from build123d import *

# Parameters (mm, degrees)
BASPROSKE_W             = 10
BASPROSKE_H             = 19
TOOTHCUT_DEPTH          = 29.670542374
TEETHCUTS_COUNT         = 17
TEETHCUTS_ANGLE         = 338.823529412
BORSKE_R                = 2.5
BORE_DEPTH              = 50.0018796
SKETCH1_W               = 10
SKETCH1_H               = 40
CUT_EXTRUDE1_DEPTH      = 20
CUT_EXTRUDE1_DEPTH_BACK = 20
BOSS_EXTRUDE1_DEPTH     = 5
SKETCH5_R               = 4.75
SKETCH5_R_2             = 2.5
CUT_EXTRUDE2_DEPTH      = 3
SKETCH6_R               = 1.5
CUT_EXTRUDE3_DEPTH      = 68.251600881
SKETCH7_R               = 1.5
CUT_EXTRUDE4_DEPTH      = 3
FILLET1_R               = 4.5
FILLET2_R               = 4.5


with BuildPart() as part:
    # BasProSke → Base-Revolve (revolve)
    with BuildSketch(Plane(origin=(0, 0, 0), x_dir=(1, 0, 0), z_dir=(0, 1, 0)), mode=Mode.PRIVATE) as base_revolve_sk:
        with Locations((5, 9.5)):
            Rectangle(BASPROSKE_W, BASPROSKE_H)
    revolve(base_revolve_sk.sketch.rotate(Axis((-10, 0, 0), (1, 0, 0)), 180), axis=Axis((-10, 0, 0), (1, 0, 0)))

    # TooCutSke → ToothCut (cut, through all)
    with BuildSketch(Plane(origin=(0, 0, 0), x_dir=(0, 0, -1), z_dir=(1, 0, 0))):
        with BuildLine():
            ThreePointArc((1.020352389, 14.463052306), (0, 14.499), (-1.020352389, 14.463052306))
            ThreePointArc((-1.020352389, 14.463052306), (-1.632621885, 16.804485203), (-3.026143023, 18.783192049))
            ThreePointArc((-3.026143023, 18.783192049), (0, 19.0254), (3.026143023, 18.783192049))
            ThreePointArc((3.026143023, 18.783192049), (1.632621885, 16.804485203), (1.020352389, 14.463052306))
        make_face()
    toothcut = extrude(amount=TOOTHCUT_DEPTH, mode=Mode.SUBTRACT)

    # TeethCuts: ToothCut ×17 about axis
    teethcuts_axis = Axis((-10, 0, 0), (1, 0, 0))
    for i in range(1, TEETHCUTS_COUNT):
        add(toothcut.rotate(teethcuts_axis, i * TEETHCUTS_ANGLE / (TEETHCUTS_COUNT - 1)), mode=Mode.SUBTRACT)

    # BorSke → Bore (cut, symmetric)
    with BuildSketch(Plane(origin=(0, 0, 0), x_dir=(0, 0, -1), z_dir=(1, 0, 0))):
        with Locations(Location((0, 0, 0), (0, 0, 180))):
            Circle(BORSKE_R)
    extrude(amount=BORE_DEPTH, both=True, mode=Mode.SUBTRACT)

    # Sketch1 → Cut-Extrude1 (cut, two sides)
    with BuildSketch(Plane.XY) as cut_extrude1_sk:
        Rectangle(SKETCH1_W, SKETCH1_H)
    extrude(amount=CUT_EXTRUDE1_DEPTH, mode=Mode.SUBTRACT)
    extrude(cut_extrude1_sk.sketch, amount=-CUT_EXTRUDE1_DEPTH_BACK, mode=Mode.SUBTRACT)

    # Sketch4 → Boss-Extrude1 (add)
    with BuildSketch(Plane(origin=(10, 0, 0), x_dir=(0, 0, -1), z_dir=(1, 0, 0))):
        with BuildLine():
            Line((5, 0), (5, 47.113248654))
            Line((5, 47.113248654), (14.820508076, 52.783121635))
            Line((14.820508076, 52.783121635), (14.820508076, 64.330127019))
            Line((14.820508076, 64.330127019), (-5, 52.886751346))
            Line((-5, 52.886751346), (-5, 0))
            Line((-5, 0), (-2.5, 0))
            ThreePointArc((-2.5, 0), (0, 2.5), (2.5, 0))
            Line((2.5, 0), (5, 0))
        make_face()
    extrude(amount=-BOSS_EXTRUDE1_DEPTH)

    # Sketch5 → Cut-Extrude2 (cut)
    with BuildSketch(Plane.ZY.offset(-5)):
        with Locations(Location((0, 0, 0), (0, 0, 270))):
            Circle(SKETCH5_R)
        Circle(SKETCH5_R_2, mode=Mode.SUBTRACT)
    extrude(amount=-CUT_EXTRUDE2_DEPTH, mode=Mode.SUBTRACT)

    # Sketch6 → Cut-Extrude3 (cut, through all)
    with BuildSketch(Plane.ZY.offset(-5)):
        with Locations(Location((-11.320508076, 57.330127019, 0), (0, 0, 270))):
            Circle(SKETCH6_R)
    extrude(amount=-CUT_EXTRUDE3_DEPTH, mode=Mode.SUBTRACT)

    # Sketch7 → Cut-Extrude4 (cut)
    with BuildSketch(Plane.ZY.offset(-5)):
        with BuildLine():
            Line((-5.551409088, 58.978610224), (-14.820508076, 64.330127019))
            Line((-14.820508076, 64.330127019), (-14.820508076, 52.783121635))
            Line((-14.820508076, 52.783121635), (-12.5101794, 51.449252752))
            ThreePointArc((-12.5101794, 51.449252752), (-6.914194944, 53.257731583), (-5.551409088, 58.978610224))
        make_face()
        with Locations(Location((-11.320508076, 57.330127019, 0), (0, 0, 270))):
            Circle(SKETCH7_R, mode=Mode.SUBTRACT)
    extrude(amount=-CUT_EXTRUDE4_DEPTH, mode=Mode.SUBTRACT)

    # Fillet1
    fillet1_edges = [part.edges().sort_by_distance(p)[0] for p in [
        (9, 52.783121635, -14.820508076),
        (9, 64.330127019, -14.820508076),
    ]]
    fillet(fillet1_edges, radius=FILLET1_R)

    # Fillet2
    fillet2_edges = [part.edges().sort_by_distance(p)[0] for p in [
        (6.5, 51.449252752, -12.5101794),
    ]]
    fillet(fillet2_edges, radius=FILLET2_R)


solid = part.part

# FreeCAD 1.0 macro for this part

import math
import FreeCAD as App
import Part
import Sketcher
Q = App.Units.Quantity


def edges_at(feature, points):
    """Names of the edges that pass closest to the given points."""
    edges = feature.Shape.Edges
    near = lambda p: min(range(len(edges)), key=lambda i: edges[i].distToShape(Part.Vertex(*p))[0])
    return sorted({f"Edge{near(p) + 1}" for p in points})

doc = App.newDocument("Part")
body = doc.addObject("PartDesign::Body", "Body")

# Sketch on XZ plane
sketch1 = body.newObject("Sketcher::SketchObject", "Sketch")
sketch1.AttachmentSupport = (doc.getObject("XZ_Plane"), [""])
sketch1.MapMode = "FlatFace"
sketch1.addGeometry(Part.LineSegment(App.Vector(0, -19, 0), App.Vector(0, 0, 0)), False)
sketch1.addGeometry(Part.LineSegment(App.Vector(0, 0, 0), App.Vector(10, 0, 0)), False)
sketch1.addGeometry(Part.LineSegment(App.Vector(10, 0, 0), App.Vector(10, -19, 0)), False)
sketch1.addGeometry(Part.LineSegment(App.Vector(10, -19, 0), App.Vector(0, -19, 0)), False)
sketch1.addConstraint(Sketcher.Constraint("Coincident", 0, 2, 1, 1))
sketch1.addConstraint(Sketcher.Constraint("Coincident", 1, 2, 2, 1))
sketch1.addConstraint(Sketcher.Constraint("Coincident", 2, 2, 3, 1))
sketch1.addConstraint(Sketcher.Constraint("Coincident", 3, 2, 0, 1))
sketch1.addConstraint(Sketcher.Constraint("Vertical", 0))
sketch1.addConstraint(Sketcher.Constraint("Horizontal", 1))
sketch1.addConstraint(Sketcher.Constraint("Vertical", 2))
sketch1.addConstraint(Sketcher.Constraint("Horizontal", 3))
sketch1.addConstraint(Sketcher.Constraint("Coincident", 0, 2, -1, 1))
sketch1.addConstraint(Sketcher.Constraint("DistanceX", 1, 1, 1, 2, 10.0))
sketch1.addConstraint(Sketcher.Constraint("DistanceY", 0, 1, 0, 2, 19.0))
revolution = body.newObject("PartDesign::Revolution", "Revolution")
revolution.Profile = sketch1
revolution.ReferenceAxis = (sketch1, ["H_Axis"])
revolution.Angle = 360

# Sketch on YZ plane
sketch2 = body.newObject("Sketcher::SketchObject", "Sketch001")
sketch2.AttachmentSupport = (doc.getObject("YZ_Plane"), [""])
sketch2.MapMode = "FlatFace"
sketch2.addGeometry(Part.ArcOfCircle(Part.Circle(App.Vector(0, 0, 0), App.Vector(0, 0, 1), 14.5), math.radians(-4.04), math.radians(4.04)), False)
sketch2.addGeometry(Part.ArcOfCircle(Part.Circle(App.Vector(13.9, -7.8, 0), App.Vector(0, 0, 1), 6.8), math.radians(45), math.radians(86)), False)
sketch2.addGeometry(Part.ArcOfCircle(Part.Circle(App.Vector(0, 0, 0), App.Vector(0, 0, 1), 19), math.radians(-9.15), math.radians(9.15)), False)
sketch2.addGeometry(Part.ArcOfCircle(Part.Circle(App.Vector(13.9, 7.8, 0), App.Vector(0, 0, 1), 6.8), math.radians(-86), math.radians(-45)), False)
sketch2.addConstraint(Sketcher.Constraint("Coincident", 0, 1, 1, 2))
sketch2.addConstraint(Sketcher.Constraint("Coincident", 1, 1, 2, 1))
sketch2.addConstraint(Sketcher.Constraint("Coincident", 2, 2, 3, 2))
sketch2.addConstraint(Sketcher.Constraint("Coincident", 3, 1, 0, 2))
sketch2.addConstraint(Sketcher.Constraint("Coincident", 0, 3, -1, 1))
sketch2.addConstraint(Sketcher.Constraint("Coincident", 2, 3, -1, 1))
sketch2.addConstraint(Sketcher.Constraint("Equal", 1, 3))
sketch2.addConstraint(Sketcher.Constraint("Symmetric", 1, 3, 3, 3, -1))
sketch2.addConstraint(Sketcher.Constraint("Radius", 1, 6.8))
sketch2.addConstraint(Sketcher.Constraint("Radius", 0, 14.499))
sketch2.addConstraint(Sketcher.Constraint("Radius", 2, 19.0254))
sketch2.addConstraint(Sketcher.Constraint("DistanceY", 0, 1, 3, 3, 8.820629))
sketch2.addConstraint(Sketcher.Constraint("DistanceX", 0, 1, 1, 1, 4.32014))
pocket1 = body.newObject("PartDesign::Pocket", "Pocket")
pocket1.Profile = sketch2
pocket1.Type = "ThroughAll"
pocket1.Reversed = True
doc.recompute()

polarpattern = body.newObject("PartDesign::PolarPattern", "PolarPattern")
polarpattern.Originals = [pocket1]
polarpattern.Axis = (doc.getObject("X_Axis"), [""])
polarpattern.Angle = 360
polarpattern.Occurrences = 17
body.Tip = polarpattern

# Sketch on YZ plane
sketch3 = body.newObject("Sketcher::SketchObject", "Sketch002")
sketch3.AttachmentSupport = (doc.getObject("YZ_Plane"), [""])
sketch3.MapMode = "FlatFace"
sketch3.addGeometry(Part.Circle(App.Vector(0, 0, 0), App.Vector(0, 0, 1), 2.5), False)
sketch3.addConstraint(Sketcher.Constraint("Coincident", 0, 3, -1, 1))
sketch3.addConstraint(Sketcher.Constraint("Diameter", 0, 5.0))
pocket2 = body.newObject("PartDesign::Pocket", "Pocket001")
pocket2.Profile = sketch3
pocket2.Length = 100.003759
pocket2.Midplane = True

# Sketch on XY plane
sketch4 = body.newObject("Sketcher::SketchObject", "Sketch003")
sketch4.AttachmentSupport = (doc.getObject("XY_Plane"), [""])
sketch4.MapMode = "FlatFace"
sketch4.addGeometry(Part.LineSegment(App.Vector(-5, 20, 0), App.Vector(-5, -20, 0)), False)
sketch4.addGeometry(Part.LineSegment(App.Vector(-5, -20, 0), App.Vector(5, -20, 0)), False)
sketch4.addGeometry(Part.LineSegment(App.Vector(5, -20, 0), App.Vector(5, 20, 0)), False)
sketch4.addGeometry(Part.LineSegment(App.Vector(5, 20, 0), App.Vector(-5, 20, 0)), False)
sketch4.addConstraint(Sketcher.Constraint("Coincident", 0, 2, 1, 1))
sketch4.addConstraint(Sketcher.Constraint("Coincident", 1, 2, 2, 1))
sketch4.addConstraint(Sketcher.Constraint("Coincident", 2, 2, 3, 1))
sketch4.addConstraint(Sketcher.Constraint("Coincident", 3, 2, 0, 1))
sketch4.addConstraint(Sketcher.Constraint("Vertical", 0))
sketch4.addConstraint(Sketcher.Constraint("Horizontal", 1))
sketch4.addConstraint(Sketcher.Constraint("Vertical", 2))
sketch4.addConstraint(Sketcher.Constraint("Horizontal", 3))
sketch4.addConstraint(Sketcher.Constraint("Symmetric", 0, 2, 2, 2, -1, 1))
sketch4.addConstraint(Sketcher.Constraint("DistanceX", 1, 1, 1, 2, 10.0))
sketch4.addConstraint(Sketcher.Constraint("DistanceY", 0, 2, 0, 1, 40.0))
pocket3 = body.newObject("PartDesign::Pocket", "Pocket002")
pocket3.Profile = sketch4
pocket3.Type = "ThroughAll"
pocket3.Midplane = True

# Sketch on YZ plane
sketch5 = body.newObject("Sketcher::SketchObject", "Sketch004")
sketch5.AttachmentSupport = (doc.getObject("YZ_Plane"), [""])
sketch5.MapMode = "FlatFace"
sketch5.AttachmentOffset = App.Placement(App.Vector(0, 0, 10), App.Rotation())
sketch5.addGeometry(Part.LineSegment(App.Vector(0, -5, 0), App.Vector(47.1, -5, 0)), False)
sketch5.addGeometry(Part.LineSegment(App.Vector(47.1, -5, 0), App.Vector(52.8, -14.8, 0)), False)
sketch5.addGeometry(Part.LineSegment(App.Vector(52.8, -14.8, 0), App.Vector(64.3, -14.8, 0)), False)
sketch5.addGeometry(Part.LineSegment(App.Vector(64.3, -14.8, 0), App.Vector(52.9, 5, 0)), False)
sketch5.addGeometry(Part.LineSegment(App.Vector(52.9, 5, 0), App.Vector(0, 5, 0)), False)
sketch5.addGeometry(Part.LineSegment(App.Vector(0, 5, 0), App.Vector(0, 2.5, 0)), False)
sketch5.addGeometry(Part.ArcOfCircle(Part.Circle(App.Vector(0, 0, 0), App.Vector(0, 0, 1), 2.5), math.radians(-90), math.radians(90)), False)
sketch5.addGeometry(Part.LineSegment(App.Vector(0, -2.5, 0), App.Vector(0, -5, 0)), False)
sketch5.addConstraint(Sketcher.Constraint("Coincident", 0, 2, 1, 1))
sketch5.addConstraint(Sketcher.Constraint("Coincident", 1, 2, 2, 1))
sketch5.addConstraint(Sketcher.Constraint("Coincident", 2, 2, 3, 1))
sketch5.addConstraint(Sketcher.Constraint("Coincident", 3, 2, 4, 1))
sketch5.addConstraint(Sketcher.Constraint("Coincident", 4, 2, 5, 1))
sketch5.addConstraint(Sketcher.Constraint("Coincident", 5, 2, 6, 2))
sketch5.addConstraint(Sketcher.Constraint("Coincident", 6, 1, 7, 1))
sketch5.addConstraint(Sketcher.Constraint("Coincident", 7, 2, 0, 1))
sketch5.addConstraint(Sketcher.Constraint("Horizontal", 0))
sketch5.addConstraint(Sketcher.Constraint("Horizontal", 2))
sketch5.addConstraint(Sketcher.Constraint("Horizontal", 4))
sketch5.addConstraint(Sketcher.Constraint("Vertical", 5))
sketch5.addConstraint(Sketcher.Constraint("Vertical", 7))
sketch5.addConstraint(Sketcher.Constraint("Coincident", 6, 3, -1, 1))
sketch5.addConstraint(Sketcher.Constraint("Symmetric", 4, 2, 7, 2, -1, 1))
sketch5.addConstraint(Sketcher.Constraint("PointOnObject", 4, 2, -2))
sketch5.addConstraint(Sketcher.Constraint("Parallel", 1, 3))
sketch5.addConstraint(Sketcher.Constraint("Radius", 6, 2.5))
sketch5.addConstraint(Sketcher.Constraint("Angle", 1, Q("-60 deg")))
sketch5.addConstraint(Sketcher.Constraint("DistanceY", 5, 2, 5, 1, 2.5))
sketch5.addConstraint(Sketcher.Constraint("DistanceX", 0, 1, 0, 2, 47.113249))
sketch5.addConstraint(Sketcher.Constraint("DistanceX", 4, 2, 4, 1, 52.886751))
sketch5.addConstraint(Sketcher.Constraint("Distance", 3, 22.886751))
pad1 = body.newObject("PartDesign::Pad", "Pad")
pad1.Profile = sketch5
pad1.Length = 5
pad1.Reversed = True

# Sketch on YZ plane
sketch6 = body.newObject("Sketcher::SketchObject", "Sketch005")
sketch6.AttachmentSupport = (doc.getObject("YZ_Plane"), [""])
sketch6.MapMode = "FlatFace"
sketch6.AttachmentOffset = App.Placement(App.Vector(0, 0, 5), App.Rotation())
sketch6.addGeometry(Part.Circle(App.Vector(0, 0, 0), App.Vector(0, 0, 1), 4.8), False)
sketch6.addGeometry(Part.Circle(App.Vector(0, 0, 0), App.Vector(0, 0, 1), 2.5), False)
sketch6.addConstraint(Sketcher.Constraint("Coincident", 0, 3, -1, 1))
sketch6.addConstraint(Sketcher.Constraint("Coincident", 1, 3, -1, 1))
sketch6.addConstraint(Sketcher.Constraint("Diameter", 1, 5.0))
sketch6.addConstraint(Sketcher.Constraint("Diameter", 0, 9.5))
pocket4 = body.newObject("PartDesign::Pocket", "Pocket003")
pocket4.Profile = sketch6
pocket4.Length = 3
pocket4.Reversed = True

# Sketch on YZ plane
sketch7 = body.newObject("Sketcher::SketchObject", "Sketch006")
sketch7.AttachmentSupport = (doc.getObject("YZ_Plane"), [""])
sketch7.MapMode = "FlatFace"
sketch7.AttachmentOffset = App.Placement(App.Vector(0, 0, 5), App.Rotation())
sketch7.addGeometry(Part.Circle(App.Vector(57.3, -11.3, 0), App.Vector(0, 0, 1), 1.5), False)
sketch7.addConstraint(Sketcher.Constraint("Diameter", 0, 3.0))
sketch7.addConstraint(Sketcher.Constraint("DistanceY", 0, 3, -1, 1, 11.320508))
sketch7.addConstraint(Sketcher.Constraint("DistanceX", -1, 1, 0, 3, 57.330127))
pocket5 = body.newObject("PartDesign::Pocket", "Pocket004")
pocket5.Profile = sketch7
pocket5.Type = "ThroughAll"
pocket5.Reversed = True

# Sketch on YZ plane
sketch8 = body.newObject("Sketcher::SketchObject", "Sketch007")
sketch8.AttachmentSupport = (doc.getObject("YZ_Plane"), [""])
sketch8.MapMode = "FlatFace"
sketch8.AttachmentOffset = App.Placement(App.Vector(0, 0, 5), App.Rotation())
sketch8.addGeometry(Part.LineSegment(App.Vector(59, -5.6, 0), App.Vector(64.3, -14.8, 0)), False)
sketch8.addGeometry(Part.LineSegment(App.Vector(64.3, -14.8, 0), App.Vector(52.8, -14.8, 0)), False)
sketch8.addGeometry(Part.LineSegment(App.Vector(52.8, -14.8, 0), App.Vector(51.4, -12.5, 0)), False)
sketch8.addGeometry(Part.ArcOfCircle(Part.Circle(App.Vector(57.3, -11.3, 0), App.Vector(0, 0, 1), 6), math.radians(74), math.radians(191)), False)
sketch8.addGeometry(Part.Circle(App.Vector(57.3, -11.3, 0), App.Vector(0, 0, 1), 1.5), False)
sketch8.addConstraint(Sketcher.Constraint("Coincident", 0, 2, 1, 1))
sketch8.addConstraint(Sketcher.Constraint("Coincident", 1, 2, 2, 1))
sketch8.addConstraint(Sketcher.Constraint("Coincident", 2, 2, 3, 2))
sketch8.addConstraint(Sketcher.Constraint("Coincident", 3, 1, 0, 1))
sketch8.addConstraint(Sketcher.Constraint("Horizontal", 1))
sketch8.addConstraint(Sketcher.Constraint("Coincident", 4, 3, 3, 3))
sketch8.addConstraint(Sketcher.Constraint("Parallel", 0, 2))
sketch8.addConstraint(Sketcher.Constraint("Diameter", 4, 3.0))
sketch8.addConstraint(Sketcher.Constraint("Radius", 3, 6.0))
sketch8.addConstraint(Sketcher.Constraint("Angle", 0, Q("-60 deg")))
sketch8.addConstraint(Sketcher.Constraint("DistanceX", 3, 3, 0, 2, 7.0))
sketch8.addConstraint(Sketcher.Constraint("DistanceY", 0, 2, 3, 3, 3.5))
sketch8.addConstraint(Sketcher.Constraint("DistanceX", 1, 2, 1, 1, 11.547005))
sketch8.addConstraint(Sketcher.Constraint("DistanceY", 3, 3, -1, 1, 11.320508))
sketch8.addConstraint(Sketcher.Constraint("DistanceX", -1, 1, 1, 2, 52.783122))
pocket6 = body.newObject("PartDesign::Pocket", "Pocket005")
pocket6.Profile = sketch8
pocket6.Length = 3
pocket6.Reversed = True
doc.recompute()

fillet = body.newObject("PartDesign::Fillet", "Fillet")
fillet.Base = (pocket6, edges_at(pocket6, [(9, 52.783, -14.821), (9, 64.33, -14.821)]))
fillet.Radius = 4.5
doc.recompute()

fillet2 = body.newObject("PartDesign::Fillet", "Fillet001")
fillet2.Base = (fillet, edges_at(fillet, [(6.5, 51.449, -12.51)]))
fillet2.Radius = 4.5

doc.recompute()
